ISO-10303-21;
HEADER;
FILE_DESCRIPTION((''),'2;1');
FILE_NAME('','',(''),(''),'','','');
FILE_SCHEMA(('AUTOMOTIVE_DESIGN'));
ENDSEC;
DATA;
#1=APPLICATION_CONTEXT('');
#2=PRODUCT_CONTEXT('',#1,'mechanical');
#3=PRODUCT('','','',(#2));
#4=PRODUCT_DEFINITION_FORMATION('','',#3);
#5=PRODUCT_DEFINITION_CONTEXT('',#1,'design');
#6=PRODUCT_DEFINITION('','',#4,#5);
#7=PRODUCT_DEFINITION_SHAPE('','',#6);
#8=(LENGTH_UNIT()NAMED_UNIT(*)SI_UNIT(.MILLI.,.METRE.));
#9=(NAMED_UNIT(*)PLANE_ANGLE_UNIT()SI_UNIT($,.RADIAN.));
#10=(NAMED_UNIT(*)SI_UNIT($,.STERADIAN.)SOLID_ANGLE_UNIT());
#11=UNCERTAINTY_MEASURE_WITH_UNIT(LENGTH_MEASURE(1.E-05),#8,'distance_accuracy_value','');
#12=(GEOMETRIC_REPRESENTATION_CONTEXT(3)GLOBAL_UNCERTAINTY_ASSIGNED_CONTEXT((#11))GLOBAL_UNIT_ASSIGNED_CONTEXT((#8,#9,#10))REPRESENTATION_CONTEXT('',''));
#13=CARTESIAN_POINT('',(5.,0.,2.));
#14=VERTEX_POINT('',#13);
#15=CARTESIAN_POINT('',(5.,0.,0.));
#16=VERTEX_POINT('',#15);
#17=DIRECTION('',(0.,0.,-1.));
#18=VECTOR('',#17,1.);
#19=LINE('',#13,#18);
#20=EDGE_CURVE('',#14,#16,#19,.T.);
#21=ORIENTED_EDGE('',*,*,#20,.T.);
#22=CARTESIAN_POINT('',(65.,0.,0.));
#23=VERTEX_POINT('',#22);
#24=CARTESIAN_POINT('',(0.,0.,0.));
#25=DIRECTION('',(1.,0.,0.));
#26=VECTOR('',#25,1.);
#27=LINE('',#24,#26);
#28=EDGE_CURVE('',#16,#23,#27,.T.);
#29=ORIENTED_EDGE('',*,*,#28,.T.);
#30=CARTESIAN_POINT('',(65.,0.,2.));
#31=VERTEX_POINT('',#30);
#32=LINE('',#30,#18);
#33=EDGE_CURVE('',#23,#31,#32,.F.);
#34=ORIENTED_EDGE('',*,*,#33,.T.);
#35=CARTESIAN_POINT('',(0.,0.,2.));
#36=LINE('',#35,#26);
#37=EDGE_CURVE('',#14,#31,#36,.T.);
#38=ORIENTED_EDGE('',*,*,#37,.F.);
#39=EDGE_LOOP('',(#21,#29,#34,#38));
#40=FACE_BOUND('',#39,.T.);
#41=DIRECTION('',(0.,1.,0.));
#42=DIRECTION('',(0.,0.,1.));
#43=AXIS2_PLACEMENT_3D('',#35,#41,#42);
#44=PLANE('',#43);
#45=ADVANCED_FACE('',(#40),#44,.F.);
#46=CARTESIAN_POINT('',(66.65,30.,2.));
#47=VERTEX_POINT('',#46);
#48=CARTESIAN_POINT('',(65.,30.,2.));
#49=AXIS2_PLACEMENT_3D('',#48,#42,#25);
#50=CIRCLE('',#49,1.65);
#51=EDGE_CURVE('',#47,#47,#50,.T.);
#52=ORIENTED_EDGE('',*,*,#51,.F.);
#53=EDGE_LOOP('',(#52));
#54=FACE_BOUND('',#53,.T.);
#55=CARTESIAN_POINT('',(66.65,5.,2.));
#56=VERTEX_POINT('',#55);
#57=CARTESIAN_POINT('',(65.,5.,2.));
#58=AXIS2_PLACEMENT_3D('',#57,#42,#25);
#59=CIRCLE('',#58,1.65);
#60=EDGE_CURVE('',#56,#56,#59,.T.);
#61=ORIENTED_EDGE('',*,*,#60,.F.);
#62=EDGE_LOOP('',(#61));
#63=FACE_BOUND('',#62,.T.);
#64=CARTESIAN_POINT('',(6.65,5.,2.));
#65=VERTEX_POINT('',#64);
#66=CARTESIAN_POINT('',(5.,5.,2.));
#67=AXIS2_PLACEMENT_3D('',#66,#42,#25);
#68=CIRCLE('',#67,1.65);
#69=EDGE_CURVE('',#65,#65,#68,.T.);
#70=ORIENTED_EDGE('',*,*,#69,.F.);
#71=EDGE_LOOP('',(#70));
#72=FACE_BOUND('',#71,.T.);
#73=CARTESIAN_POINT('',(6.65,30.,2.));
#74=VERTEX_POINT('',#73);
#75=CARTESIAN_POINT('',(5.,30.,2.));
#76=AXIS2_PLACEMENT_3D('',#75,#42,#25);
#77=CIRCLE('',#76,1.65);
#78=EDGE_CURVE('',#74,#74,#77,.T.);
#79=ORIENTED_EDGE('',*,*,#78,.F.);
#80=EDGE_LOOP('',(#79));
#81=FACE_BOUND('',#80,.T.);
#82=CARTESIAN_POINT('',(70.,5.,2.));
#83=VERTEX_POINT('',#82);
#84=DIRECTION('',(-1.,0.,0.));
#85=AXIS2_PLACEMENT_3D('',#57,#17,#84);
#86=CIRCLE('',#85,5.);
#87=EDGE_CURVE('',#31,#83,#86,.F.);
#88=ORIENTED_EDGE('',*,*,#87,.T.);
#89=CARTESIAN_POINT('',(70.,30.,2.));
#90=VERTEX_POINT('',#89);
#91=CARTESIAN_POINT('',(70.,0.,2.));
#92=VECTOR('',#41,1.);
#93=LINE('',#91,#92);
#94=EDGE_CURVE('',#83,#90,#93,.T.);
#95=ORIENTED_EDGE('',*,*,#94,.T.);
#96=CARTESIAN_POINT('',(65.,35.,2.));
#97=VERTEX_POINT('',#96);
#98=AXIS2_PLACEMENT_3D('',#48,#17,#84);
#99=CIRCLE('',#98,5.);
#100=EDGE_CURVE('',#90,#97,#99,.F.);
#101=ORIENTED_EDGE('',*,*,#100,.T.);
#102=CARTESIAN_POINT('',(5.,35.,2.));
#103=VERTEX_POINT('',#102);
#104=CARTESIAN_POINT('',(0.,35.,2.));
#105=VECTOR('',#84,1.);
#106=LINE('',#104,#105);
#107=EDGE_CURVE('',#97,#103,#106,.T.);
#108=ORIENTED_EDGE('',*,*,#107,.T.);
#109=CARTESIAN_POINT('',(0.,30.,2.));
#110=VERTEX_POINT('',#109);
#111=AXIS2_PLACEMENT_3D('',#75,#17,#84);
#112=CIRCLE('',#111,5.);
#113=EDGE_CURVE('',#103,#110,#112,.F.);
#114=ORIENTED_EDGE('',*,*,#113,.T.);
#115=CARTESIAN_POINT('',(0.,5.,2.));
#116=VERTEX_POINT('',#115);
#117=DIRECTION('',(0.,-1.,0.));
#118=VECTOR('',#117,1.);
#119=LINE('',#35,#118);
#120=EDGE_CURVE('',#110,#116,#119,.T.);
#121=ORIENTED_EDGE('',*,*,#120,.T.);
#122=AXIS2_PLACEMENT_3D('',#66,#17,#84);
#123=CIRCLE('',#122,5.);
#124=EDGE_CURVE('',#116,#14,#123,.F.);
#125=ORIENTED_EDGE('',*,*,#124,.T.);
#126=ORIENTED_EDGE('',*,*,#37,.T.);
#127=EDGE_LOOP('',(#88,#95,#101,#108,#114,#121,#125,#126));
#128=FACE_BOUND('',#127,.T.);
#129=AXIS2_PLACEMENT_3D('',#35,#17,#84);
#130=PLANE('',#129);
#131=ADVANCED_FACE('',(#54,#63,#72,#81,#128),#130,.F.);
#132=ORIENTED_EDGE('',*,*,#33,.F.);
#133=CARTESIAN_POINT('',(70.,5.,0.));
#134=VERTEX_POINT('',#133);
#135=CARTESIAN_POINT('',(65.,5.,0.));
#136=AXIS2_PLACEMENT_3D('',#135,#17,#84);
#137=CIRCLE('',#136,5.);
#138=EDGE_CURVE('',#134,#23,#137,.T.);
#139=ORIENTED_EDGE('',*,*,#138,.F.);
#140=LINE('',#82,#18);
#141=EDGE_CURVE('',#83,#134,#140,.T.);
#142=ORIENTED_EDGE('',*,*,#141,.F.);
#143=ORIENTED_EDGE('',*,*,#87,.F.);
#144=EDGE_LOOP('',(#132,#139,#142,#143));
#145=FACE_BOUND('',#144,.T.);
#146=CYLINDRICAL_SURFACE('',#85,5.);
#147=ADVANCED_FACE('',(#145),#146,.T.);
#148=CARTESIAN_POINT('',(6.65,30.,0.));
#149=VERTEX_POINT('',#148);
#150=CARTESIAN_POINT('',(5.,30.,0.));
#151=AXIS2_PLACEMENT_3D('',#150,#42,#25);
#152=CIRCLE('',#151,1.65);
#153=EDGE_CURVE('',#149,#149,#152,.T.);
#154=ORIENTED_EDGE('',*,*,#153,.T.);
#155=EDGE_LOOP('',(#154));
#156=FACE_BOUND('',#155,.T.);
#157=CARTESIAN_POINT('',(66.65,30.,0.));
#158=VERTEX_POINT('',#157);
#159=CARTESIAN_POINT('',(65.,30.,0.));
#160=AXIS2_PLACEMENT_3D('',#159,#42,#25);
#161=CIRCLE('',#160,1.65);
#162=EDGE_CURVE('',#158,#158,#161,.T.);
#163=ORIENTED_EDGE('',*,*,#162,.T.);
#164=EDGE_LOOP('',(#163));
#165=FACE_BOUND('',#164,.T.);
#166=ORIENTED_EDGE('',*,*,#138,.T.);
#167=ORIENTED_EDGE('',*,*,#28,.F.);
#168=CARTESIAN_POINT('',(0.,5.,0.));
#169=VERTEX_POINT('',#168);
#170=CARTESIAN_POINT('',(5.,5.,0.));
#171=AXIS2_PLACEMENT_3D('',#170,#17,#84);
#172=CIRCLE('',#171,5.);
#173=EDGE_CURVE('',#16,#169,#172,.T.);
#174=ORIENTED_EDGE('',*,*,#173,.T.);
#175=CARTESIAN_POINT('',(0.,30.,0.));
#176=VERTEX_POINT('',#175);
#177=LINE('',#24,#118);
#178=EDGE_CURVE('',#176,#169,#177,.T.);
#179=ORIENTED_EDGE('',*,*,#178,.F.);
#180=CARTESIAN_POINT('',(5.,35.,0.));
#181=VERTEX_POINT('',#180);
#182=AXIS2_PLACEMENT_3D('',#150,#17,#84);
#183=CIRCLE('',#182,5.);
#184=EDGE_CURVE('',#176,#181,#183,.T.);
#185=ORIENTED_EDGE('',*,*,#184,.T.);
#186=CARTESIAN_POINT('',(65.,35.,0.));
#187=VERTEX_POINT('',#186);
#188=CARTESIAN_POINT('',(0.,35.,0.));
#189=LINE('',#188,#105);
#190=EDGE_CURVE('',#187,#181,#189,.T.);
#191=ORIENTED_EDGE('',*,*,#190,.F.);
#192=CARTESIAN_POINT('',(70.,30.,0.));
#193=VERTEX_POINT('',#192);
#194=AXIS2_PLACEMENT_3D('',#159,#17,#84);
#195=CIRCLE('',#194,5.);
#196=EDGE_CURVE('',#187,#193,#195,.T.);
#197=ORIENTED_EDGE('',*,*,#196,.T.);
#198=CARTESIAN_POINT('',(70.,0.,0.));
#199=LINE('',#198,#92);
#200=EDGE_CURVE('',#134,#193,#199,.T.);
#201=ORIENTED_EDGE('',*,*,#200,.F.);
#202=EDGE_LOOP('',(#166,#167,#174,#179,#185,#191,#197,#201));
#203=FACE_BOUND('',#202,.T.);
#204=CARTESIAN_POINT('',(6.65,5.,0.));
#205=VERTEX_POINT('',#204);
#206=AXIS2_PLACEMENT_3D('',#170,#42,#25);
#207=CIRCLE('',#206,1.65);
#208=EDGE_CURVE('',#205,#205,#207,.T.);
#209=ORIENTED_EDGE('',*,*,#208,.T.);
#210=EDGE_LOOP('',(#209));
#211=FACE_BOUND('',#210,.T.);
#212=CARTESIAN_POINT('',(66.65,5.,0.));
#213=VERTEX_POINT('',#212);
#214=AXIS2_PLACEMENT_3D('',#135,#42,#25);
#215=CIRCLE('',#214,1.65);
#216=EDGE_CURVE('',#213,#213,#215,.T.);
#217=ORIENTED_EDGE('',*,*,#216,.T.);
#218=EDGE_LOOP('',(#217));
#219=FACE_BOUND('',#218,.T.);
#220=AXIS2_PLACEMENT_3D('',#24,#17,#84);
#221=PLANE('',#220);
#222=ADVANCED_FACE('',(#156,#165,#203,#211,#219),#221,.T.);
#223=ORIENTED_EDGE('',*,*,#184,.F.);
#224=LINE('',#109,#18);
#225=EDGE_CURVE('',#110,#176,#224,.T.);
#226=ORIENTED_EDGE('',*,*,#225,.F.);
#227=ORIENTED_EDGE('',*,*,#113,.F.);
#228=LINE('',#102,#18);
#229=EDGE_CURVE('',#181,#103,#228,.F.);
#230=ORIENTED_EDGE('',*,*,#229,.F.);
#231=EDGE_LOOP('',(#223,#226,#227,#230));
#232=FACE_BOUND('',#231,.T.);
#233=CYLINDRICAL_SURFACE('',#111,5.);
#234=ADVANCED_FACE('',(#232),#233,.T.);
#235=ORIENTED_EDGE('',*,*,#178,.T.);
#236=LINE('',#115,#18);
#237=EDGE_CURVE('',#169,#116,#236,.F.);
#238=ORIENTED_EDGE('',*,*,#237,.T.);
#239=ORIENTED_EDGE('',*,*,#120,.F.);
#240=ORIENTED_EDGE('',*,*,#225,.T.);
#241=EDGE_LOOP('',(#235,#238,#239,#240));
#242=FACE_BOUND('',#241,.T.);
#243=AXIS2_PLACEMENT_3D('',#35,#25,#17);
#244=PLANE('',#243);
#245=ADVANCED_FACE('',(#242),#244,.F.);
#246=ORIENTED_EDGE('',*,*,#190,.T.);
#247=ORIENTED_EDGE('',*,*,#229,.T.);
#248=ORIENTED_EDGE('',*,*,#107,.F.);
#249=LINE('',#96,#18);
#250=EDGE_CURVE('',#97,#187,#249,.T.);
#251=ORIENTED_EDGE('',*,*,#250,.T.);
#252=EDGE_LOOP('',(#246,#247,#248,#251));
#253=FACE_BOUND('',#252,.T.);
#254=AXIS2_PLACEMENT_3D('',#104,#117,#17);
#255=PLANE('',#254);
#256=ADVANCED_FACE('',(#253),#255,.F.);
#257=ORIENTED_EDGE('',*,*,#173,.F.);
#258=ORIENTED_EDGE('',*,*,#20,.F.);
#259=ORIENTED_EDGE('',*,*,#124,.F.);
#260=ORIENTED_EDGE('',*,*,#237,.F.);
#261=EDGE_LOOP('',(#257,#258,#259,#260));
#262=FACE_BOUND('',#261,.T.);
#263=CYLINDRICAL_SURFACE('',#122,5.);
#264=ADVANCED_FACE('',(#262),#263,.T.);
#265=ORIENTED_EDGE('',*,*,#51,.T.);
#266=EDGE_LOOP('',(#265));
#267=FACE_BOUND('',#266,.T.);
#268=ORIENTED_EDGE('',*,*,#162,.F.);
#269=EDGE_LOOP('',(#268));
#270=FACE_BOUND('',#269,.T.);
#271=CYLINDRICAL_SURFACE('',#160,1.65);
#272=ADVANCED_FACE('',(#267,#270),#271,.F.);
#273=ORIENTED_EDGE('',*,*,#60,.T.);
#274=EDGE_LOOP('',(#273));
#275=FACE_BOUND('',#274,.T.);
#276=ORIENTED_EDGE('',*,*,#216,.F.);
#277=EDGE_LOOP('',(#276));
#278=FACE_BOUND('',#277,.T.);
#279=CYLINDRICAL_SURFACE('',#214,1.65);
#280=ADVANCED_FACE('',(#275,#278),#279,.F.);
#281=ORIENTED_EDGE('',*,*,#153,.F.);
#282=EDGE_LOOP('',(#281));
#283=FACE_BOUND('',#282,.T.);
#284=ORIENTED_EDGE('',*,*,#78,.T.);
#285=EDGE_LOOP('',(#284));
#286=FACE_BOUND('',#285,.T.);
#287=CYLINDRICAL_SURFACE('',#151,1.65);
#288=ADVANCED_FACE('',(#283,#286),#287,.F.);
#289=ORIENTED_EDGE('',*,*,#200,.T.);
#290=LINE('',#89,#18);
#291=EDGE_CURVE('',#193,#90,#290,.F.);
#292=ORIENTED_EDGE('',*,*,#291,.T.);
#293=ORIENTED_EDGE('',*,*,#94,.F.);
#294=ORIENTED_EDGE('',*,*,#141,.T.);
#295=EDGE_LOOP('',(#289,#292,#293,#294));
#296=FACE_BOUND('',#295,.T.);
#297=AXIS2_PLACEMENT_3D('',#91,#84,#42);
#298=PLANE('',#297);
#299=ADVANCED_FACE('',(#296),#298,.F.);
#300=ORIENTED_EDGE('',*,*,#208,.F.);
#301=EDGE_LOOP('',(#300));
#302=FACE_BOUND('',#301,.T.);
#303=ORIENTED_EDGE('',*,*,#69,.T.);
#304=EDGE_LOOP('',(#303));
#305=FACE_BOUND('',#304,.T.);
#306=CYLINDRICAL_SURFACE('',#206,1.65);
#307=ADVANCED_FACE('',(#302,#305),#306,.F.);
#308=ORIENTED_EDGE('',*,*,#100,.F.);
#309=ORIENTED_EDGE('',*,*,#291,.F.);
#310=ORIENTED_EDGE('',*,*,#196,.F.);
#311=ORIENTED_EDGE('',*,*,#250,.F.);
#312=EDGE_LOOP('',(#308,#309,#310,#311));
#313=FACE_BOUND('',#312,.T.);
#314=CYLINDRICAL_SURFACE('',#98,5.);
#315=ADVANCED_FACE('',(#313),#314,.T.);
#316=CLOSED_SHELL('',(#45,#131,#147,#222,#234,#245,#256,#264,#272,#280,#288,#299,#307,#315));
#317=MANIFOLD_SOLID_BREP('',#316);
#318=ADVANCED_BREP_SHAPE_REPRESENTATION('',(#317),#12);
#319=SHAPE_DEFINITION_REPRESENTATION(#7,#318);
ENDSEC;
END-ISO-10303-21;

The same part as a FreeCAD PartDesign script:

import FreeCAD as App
import Part
import Sketcher

V = App.Vector
Q = App.Units.Quantity


def edges_at(feature, points):
    """Names of the edges that pass closest to the given points."""
    edges = feature.Shape.Edges
    near = lambda p: min(range(len(edges)), key=lambda i: edges[i].distToShape(Part.Vertex(*p))[0])
    return sorted({f"Edge{near(p) + 1}" for p in points})


def add_polygon(sketch, points):
    """Adds a closed chain of lines whose ends are joined by coincident constraints."""
    first, n = sketch.GeometryCount, len(points)
    for a, b in zip(points, points[1:] + points[:1]):
        sketch.addGeometry(Part.LineSegment(App.Vector(*a, 0), App.Vector(*b, 0)), False)
    for i in range(n):
        sketch.addConstraint(Sketcher.Constraint("Coincident", first + i, 2, first + (i + 1) % n, 1))

doc = App.newDocument("Part")
body = doc.addObject("PartDesign::Body", "Body")

# Sketch on XY plane
sketch1 = doc.addObject("Sketcher::SketchObject", "Sketch")
body.addObject(sketch1)
sketch1.AttachmentSupport = (doc.XY_Plane, [""])
sketch1.MapMode = "FlatFace"
add_polygon(sketch1, [(0, 35), (0, 0), (70, 0), (70, 35)])  # lines 0-3
sketch1.addConstraint([
    Sketcher.Constraint("Vertical", 0),
    Sketcher.Constraint("Horizontal", 1),
    Sketcher.Constraint("Vertical", 2),
    Sketcher.Constraint("Horizontal", 3),
    Sketcher.Constraint("Coincident", 0, 2, -1, 1),
    Sketcher.Constraint("DistanceX", 1, 1, 1, 2, Q("70 mm")),
    Sketcher.Constraint("DistanceY", 0, 2, 0, 1, Q("35 mm")),
])
pad1 = doc.addObject("PartDesign::Pad", "Pad")
body.addObject(pad1)
pad1.Profile = sketch1
pad1.Length = 2
doc.recompute()

fillet = doc.addObject("PartDesign::Fillet", "Fillet")
body.addObject(fillet)
fillet.Base = (pad1, edges_at(pad1, [
    (0, 35, 1),
    (70, 35, 1),
    (70, 0, 1),
    (0, 0, 1),
]))
fillet.Radius = 5

# Sketch on XY plane
sketch2 = doc.addObject("Sketcher::SketchObject", "Sketch001")
body.addObject(sketch2)
sketch2.AttachmentSupport = (doc.XY_Plane, [""])
sketch2.MapMode = "FlatFace"
sketch2.AttachmentOffset = App.Placement(V(0, 0, 2), App.Rotation())
sketch2.addGeometry([
    Part.Circle(V(5, 30, 0), V(0, 0, 1), 1.6),
    Part.Circle(V(5, 5, 0), V(0, 0, 1), 1.6),
    Part.Circle(V(65, 5, 0), V(0, 0, 1), 1.6),
    Part.Circle(V(65, 30, 0), V(0, 0, 1), 1.6),
], False)
sketch2.addConstraint([
    Sketcher.Constraint("Equal", 0, 1),
    Sketcher.Constraint("Equal", 1, 2),
    Sketcher.Constraint("Equal", 2, 3),
    Sketcher.Constraint("Horizontal", 1, 3, 2, 3),
    Sketcher.Constraint("Horizontal", 0, 3, 3, 3),
    Sketcher.Constraint("Vertical", 0, 3, 1, 3),
    Sketcher.Constraint("Vertical", 2, 3, 3, 3),
    Sketcher.Constraint("Diameter", 0, Q("3.3 mm")),
    Sketcher.Constraint("DistanceX", -1, 1, 0, 3, Q("5 mm")),
    Sketcher.Constraint("DistanceY", -1, 1, 0, 3, Q("30 mm")),
    Sketcher.Constraint("DistanceY", -1, 1, 1, 3, Q("5 mm")),
    Sketcher.Constraint("DistanceX", -1, 1, 2, 3, Q("65 mm")),
])
pocket1 = doc.addObject("PartDesign::Pocket", "Pocket")
body.addObject(pocket1)
pocket1.Profile = sketch2
pocket1.Length = 2

doc.recompute()
